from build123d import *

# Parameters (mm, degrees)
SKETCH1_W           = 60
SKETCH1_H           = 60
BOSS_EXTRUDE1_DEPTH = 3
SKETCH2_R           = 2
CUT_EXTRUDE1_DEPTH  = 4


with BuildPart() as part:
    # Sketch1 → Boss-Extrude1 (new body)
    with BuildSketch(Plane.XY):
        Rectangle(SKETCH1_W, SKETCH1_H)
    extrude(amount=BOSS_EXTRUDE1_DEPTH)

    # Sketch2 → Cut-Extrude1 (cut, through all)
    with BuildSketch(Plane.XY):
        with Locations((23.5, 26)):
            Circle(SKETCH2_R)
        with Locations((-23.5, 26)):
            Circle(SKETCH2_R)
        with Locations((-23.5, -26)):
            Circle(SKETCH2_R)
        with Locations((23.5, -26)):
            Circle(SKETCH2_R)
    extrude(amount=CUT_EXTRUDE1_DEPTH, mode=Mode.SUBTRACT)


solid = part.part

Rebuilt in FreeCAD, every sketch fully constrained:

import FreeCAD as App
import Part
import Sketcher


def add_polygon(sketch, points):
    """Adds a closed chain of lines whose ends are joined by coincident constraints."""
    first, n = sketch.GeometryCount, len(points)
    for a, b in zip(points, points[1:] + points[:1]):
        sketch.addGeometry(Part.LineSegment(App.Vector(*a, 0), App.Vector(*b, 0)), False)
    for i in range(n):
        sketch.addConstraint(Sketcher.Constraint("Coincident", first + i, 2, first + (i + 1) % n, 1))

doc = App.newDocument("Part")
body = doc.addObject("PartDesign::Body", "Body")

sketch1 = body.newObject("Sketcher::SketchObject", "Sketch")
sketch1.AttachmentSupport = (doc.getObject("XY_Plane"), [""])
sketch1.MapMode = "FlatFace"
add_polygon(sketch1, [(-30, 30), (-30, -30), (30, -30), (30, 30)])
sketch1.addConstraint(Sketcher.Constraint("Vertical", 0))
sketch1.addConstraint(Sketcher.Constraint("Horizontal", 1))
sketch1.addConstraint(Sketcher.Constraint("Vertical", 2))
sketch1.addConstraint(Sketcher.Constraint("Horizontal", 3))
sketch1.addConstraint(Sketcher.Constraint("Symmetric", 0, 2, 2, 2, -1, 1))
sketch1.addConstraint(Sketcher.Constraint("Equal", 3, 0))
sketch1.addConstraint(Sketcher.Constraint("DistanceX", 1, 1, 1, 2, 60.0))
pad1 = body.newObject("PartDesign::Pad", "Pad")
pad1.Profile = sketch1
pad1.Length = 3

sketch2 = body.newObject("Sketcher::SketchObject", "Sketch001")
sketch2.AttachmentSupport = (doc.getObject("XY_Plane"), [""])
sketch2.MapMode = "FlatFace"
sketch2.addGeometry(Part.Circle(App.Vector(23.5, 26, 0), App.Vector(0, 0, 1), 2), False)
sketch2.addGeometry(Part.Circle(App.Vector(-23.5, 26, 0), App.Vector(0, 0, 1), 2), False)
sketch2.addGeometry(Part.Circle(App.Vector(-23.5, -26, 0), App.Vector(0, 0, 1), 2), False)
sketch2.addGeometry(Part.Circle(App.Vector(23.5, -26, 0), App.Vector(0, 0, 1), 2), False)
sketch2.addConstraint(Sketcher.Constraint("Equal", 0, 1))
sketch2.addConstraint(Sketcher.Constraint("Equal", 1, 2))
sketch2.addConstraint(Sketcher.Constraint("Equal", 2, 3))
sketch2.addConstraint(Sketcher.Constraint("Symmetric", 0, 3, 2, 3, -1, 1))
sketch2.addConstraint(Sketcher.Constraint("Symmetric", 1, 3, 3, 3, -1, 1))
sketch2.addConstraint(Sketcher.Constraint("Symmetric", 0, 3, 1, 3, -2))
sketch2.addConstraint(Sketcher.Constraint("Diameter", 0, 4.0))
sketch2.addConstraint(Sketcher.Constraint("DistanceY", -1, 1, 0, 3, 26.0))
sketch2.addConstraint(Sketcher.Constraint("DistanceX", 1, 3, 0, 3, 47.0))
pocket1 = body.newObject("PartDesign::Pocket", "Pocket")
pocket1.Profile = sketch2
pocket1.Type = "ThroughAll"
pocket1.Reversed = True

doc.recompute()
